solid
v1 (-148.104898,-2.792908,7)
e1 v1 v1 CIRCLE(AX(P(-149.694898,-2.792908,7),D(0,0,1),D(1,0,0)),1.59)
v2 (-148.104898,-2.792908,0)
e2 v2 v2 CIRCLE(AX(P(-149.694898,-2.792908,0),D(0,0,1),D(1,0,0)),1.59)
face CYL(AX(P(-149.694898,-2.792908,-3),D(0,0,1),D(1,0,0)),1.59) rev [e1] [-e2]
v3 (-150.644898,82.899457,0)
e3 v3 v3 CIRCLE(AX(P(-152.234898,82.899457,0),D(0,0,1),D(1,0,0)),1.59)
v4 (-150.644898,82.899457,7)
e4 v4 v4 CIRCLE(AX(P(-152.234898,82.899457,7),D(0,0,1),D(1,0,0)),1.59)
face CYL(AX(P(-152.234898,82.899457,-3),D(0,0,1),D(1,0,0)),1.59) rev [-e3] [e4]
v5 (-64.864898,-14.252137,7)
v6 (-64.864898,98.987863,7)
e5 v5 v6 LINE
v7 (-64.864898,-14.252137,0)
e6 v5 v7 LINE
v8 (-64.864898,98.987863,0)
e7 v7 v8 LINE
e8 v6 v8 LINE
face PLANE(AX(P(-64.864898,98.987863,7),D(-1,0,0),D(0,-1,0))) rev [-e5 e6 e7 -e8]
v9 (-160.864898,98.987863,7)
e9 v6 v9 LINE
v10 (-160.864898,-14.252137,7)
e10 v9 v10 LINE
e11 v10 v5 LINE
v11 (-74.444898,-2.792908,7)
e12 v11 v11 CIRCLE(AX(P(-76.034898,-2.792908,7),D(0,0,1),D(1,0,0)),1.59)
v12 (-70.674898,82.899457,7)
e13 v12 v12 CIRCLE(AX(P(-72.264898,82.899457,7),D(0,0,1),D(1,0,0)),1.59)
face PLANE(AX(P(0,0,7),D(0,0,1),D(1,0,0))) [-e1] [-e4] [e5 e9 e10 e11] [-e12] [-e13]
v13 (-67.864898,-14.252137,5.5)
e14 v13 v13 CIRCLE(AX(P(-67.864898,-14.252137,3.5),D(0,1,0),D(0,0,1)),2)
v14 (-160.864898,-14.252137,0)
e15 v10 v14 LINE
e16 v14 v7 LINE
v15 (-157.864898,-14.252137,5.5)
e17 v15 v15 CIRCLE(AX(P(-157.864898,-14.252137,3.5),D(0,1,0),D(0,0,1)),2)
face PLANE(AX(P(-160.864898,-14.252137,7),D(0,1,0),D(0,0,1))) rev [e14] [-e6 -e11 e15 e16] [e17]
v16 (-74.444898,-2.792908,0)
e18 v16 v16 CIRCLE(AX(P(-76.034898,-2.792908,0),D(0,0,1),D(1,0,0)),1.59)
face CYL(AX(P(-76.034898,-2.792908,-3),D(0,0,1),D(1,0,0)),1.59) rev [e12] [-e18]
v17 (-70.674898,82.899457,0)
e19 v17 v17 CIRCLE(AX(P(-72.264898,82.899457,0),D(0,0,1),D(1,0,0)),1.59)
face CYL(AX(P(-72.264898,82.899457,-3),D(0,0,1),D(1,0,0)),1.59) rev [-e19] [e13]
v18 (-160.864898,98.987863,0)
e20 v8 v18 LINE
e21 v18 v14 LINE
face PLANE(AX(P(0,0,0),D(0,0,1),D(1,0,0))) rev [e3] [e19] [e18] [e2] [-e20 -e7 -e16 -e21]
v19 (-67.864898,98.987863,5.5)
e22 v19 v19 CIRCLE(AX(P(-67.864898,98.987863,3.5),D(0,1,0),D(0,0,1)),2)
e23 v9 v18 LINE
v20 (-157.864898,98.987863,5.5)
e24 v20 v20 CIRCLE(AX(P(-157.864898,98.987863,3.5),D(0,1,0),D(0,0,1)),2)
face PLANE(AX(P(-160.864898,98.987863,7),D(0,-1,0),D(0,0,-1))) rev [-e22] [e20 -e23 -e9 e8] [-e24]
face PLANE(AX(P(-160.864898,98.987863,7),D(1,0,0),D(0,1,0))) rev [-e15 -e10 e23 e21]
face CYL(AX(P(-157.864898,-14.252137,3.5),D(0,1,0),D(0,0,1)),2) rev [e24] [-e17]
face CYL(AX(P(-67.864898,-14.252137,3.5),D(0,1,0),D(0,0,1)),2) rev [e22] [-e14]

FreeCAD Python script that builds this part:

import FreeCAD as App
import Part
import Sketcher
from FreeCAD import Vector
Q = App.Units.Quantity


def add_polygon(sketch, points):
    """Adds a closed chain of lines whose ends are joined by coincident constraints."""
    first, n = sketch.GeometryCount, len(points)
    for a, b in zip(points, points[1:] + points[:1]):
        sketch.addGeometry(Part.LineSegment(App.Vector(*a, 0), App.Vector(*b, 0)), False)
    for i in range(n):
        sketch.addConstraint(Sketcher.Constraint("Coincident", first + i, 2, first + (i + 1) % n, 1))

doc = App.newDocument("Part")
body = doc.addObject("PartDesign::Body", "Body")

# Sketch on XY plane
sketch1 = body.newObject("Sketcher::SketchObject", "Sketch")
sketch1.AttachmentSupport = (doc.getObject("XY_Plane"), [""])
sketch1.MapMode = "FlatFace"
add_polygon(sketch1, [(-161, 99), (-161, -14), (-65, -14), (-65, 99)])  # lines 0-3
sketch1.addConstraint([
    Sketcher.Constraint("Vertical", 0),
    Sketcher.Constraint("Horizontal", 1),
    Sketcher.Constraint("Vertical", 2),
    Sketcher.Constraint("Horizontal", 3),
    Sketcher.Constraint("DistanceX", 1, 1, 1, 2, Q("96 mm")),
    Sketcher.Constraint("DistanceY", 0, 2, 0, 1, Q("113.24 mm")),
    Sketcher.Constraint("DistanceX", 0, 2, -1, 1, Q("160.864898 mm")),
    Sketcher.Constraint("DistanceY", 0, 2, -1, 1, Q("14.252137 mm")),
])
pad1 = body.newObject("PartDesign::Pad", "Pad")
pad1.Profile = sketch1
pad1.Length = 7

# Sketch on XY plane
sketch2 = body.newObject("Sketcher::SketchObject", "Sketch001")
sketch2.AttachmentSupport = (doc.getObject("XY_Plane"), [""])
sketch2.MapMode = "FlatFace"
sketch2.AttachmentOffset = App.Placement(Vector(0, 0, 7), App.Rotation())
sketch2.addGeometry([
    Part.Circle(Vector(-152.2, 82.9, 0), Vector(0, 0, 1), 1.6),
    Part.Circle(Vector(-72.3, 82.9, 0), Vector(0, 0, 1), 1.6),
    Part.Circle(Vector(-149.7, -2.8, 0), Vector(0, 0, 1), 1.6),
    Part.Circle(Vector(-76, -2.8, 0), Vector(0, 0, 1), 1.6),
], False)
sketch2.addConstraint([
    Sketcher.Constraint("Equal", 0, 1),
    Sketcher.Constraint("Equal", 1, 2),
    Sketcher.Constraint("Equal", 2, 3),
    Sketcher.Constraint("Horizontal", 0, 3, 1, 3),
    Sketcher.Constraint("Horizontal", 2, 3, 3, 3),
    Sketcher.Constraint("Diameter", 0, Q("3.18 mm")),
    Sketcher.Constraint("DistanceX", 0, 3, 3, 3, Q("76.2 mm")),
    Sketcher.Constraint("DistanceX", 0, 3, 1, 3, Q("79.97 mm")),
    Sketcher.Constraint("DistanceX", 0, 3, 2, 3, Q("2.54 mm")),
    Sketcher.Constraint("DistanceX", 0, 3, -1, 1, Q("152.234898 mm")),
    Sketcher.Constraint("DistanceY", -1, 1, 0, 3, Q("82.899457 mm")),
    Sketcher.Constraint("DistanceY", 2, 3, -1, 1, Q("2.792908 mm")),
])
pocket1 = body.newObject("PartDesign::Pocket", "Pocket")
pocket1.Profile = sketch2
pocket1.Length = 10

# Sketch on XZ plane
sketch3 = body.newObject("Sketcher::SketchObject", "Sketch002")
sketch3.AttachmentSupport = (doc.getObject("XZ_Plane"), [""])
sketch3.MapMode = "FlatFace"
sketch3.AttachmentOffset = App.Placement(Vector(0, 0, -98.987863), App.Rotation())
sketch3.addGeometry([
    Part.Circle(Vector(-67.9, 3.5, 0), Vector(0, 0, 1), 2),
    Part.Circle(Vector(-157.9, 3.5, 0), Vector(0, 0, 1), 2),
], False)
sketch3.addConstraint([
    Sketcher.Constraint("Equal", 0, 1),
    Sketcher.Constraint("Horizontal", 0, 3, 1, 3),
    Sketcher.Constraint("Diameter", 0, Q("4 mm")),
    Sketcher.Constraint("DistanceX", 1, 3, 0, 3, Q("90 mm")),
    Sketcher.Constraint("DistanceY", -1, 1, 0, 3, Q("3.5 mm")),
    Sketcher.Constraint("DistanceX", 0, 3, -1, 1, Q("67.864898 mm")),
])
pocket2 = body.newObject("PartDesign::Pocket", "Pocket001")
pocket2.Profile = sketch3
pocket2.Type = "ThroughAll"
pocket2.Reversed = True

doc.recompute()
